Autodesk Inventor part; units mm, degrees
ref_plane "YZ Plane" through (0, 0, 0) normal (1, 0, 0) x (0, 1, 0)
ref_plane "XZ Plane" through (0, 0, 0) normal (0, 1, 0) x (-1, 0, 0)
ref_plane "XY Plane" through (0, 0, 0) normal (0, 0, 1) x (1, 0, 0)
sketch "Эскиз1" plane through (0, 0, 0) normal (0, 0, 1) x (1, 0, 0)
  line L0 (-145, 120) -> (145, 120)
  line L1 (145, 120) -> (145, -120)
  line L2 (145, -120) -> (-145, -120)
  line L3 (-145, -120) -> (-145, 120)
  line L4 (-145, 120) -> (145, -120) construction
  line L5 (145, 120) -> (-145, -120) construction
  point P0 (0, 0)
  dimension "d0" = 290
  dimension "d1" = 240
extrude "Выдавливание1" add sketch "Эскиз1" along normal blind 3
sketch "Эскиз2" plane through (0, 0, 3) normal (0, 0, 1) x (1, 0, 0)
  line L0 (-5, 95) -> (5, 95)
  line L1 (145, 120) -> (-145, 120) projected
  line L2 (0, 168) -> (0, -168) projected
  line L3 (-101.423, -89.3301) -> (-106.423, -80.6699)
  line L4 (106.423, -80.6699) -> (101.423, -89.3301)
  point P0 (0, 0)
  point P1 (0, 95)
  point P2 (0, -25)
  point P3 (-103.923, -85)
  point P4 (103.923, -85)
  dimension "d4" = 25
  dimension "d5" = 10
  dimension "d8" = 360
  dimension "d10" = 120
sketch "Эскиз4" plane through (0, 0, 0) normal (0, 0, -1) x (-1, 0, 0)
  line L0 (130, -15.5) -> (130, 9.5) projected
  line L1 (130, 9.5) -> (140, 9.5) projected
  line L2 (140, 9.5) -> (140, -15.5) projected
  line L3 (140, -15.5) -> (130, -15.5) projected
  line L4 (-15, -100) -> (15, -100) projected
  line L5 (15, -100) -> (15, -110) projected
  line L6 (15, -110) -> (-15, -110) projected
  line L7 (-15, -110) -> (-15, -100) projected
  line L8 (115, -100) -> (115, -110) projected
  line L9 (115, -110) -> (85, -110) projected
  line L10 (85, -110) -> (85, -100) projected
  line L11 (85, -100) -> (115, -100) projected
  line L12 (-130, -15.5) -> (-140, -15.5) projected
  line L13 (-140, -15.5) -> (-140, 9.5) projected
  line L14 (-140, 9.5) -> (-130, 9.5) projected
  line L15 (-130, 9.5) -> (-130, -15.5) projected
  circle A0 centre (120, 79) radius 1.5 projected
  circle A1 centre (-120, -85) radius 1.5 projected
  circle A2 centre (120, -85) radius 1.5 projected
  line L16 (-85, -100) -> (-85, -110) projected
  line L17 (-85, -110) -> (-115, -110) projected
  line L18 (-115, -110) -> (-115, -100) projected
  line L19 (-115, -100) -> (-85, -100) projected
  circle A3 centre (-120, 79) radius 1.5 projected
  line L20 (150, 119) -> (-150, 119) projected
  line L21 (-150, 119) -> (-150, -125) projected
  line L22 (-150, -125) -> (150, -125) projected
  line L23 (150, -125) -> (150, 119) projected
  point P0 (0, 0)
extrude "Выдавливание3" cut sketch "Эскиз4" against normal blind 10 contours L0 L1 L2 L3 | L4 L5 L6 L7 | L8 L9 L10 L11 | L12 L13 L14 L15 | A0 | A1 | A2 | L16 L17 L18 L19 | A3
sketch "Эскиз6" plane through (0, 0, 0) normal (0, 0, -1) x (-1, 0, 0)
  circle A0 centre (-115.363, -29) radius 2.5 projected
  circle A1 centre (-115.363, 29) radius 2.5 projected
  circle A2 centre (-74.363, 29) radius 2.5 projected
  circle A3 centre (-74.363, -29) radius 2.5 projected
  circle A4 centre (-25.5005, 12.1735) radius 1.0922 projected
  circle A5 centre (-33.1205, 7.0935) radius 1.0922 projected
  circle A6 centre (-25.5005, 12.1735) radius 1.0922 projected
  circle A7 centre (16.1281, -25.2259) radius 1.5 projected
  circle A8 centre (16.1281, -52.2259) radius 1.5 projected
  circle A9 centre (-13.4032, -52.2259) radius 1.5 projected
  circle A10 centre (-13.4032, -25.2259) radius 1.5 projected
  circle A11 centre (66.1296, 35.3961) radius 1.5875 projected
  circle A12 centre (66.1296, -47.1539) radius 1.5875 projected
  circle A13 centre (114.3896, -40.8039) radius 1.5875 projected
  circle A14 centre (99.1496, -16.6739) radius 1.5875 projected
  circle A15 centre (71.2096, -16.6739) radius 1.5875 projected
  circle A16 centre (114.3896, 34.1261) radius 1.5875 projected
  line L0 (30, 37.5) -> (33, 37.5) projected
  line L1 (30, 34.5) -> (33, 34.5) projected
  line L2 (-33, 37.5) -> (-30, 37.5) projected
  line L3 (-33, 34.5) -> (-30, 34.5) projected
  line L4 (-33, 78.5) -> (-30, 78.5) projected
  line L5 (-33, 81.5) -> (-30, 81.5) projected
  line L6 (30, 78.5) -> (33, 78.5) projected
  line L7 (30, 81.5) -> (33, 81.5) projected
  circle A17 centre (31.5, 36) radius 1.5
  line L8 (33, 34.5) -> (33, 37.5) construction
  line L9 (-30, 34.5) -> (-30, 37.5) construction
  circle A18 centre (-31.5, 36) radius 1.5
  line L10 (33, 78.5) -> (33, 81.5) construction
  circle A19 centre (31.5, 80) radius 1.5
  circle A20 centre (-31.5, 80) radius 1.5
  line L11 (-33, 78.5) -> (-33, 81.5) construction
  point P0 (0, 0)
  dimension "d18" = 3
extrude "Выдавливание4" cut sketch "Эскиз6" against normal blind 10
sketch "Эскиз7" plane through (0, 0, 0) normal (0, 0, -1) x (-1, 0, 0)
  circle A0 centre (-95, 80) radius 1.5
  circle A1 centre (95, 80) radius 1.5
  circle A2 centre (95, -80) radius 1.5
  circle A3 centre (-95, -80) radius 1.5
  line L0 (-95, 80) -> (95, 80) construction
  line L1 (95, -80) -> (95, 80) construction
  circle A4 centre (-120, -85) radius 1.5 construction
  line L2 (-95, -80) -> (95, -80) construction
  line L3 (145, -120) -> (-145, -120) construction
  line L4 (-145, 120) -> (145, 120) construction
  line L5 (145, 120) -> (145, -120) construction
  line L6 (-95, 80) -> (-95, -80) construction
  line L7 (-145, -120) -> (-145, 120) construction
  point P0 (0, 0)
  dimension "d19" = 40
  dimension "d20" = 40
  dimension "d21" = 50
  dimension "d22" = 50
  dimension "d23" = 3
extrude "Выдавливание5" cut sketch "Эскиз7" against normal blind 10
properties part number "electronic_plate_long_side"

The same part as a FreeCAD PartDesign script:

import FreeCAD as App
import Part
import Sketcher

V = App.Vector


def add_polygon(sketch, points):
    """Adds a closed chain of lines whose ends are joined by coincident constraints."""
    first, n = sketch.GeometryCount, len(points)
    for a, b in zip(points, points[1:] + points[:1]):
        sketch.addGeometry(Part.LineSegment(App.Vector(*a, 0), App.Vector(*b, 0)), False)
    for i in range(n):
        sketch.addConstraint(Sketcher.Constraint("Coincident", first + i, 2, first + (i + 1) % n, 1))

doc = App.newDocument("Part")
body = doc.addObject("PartDesign::Body", "Body")

# Sketch on XY plane
sketch1 = body.newObject("Sketcher::SketchObject", "Sketch")
sketch1.AttachmentSupport = (doc.getObject("XY_Plane"), [""])
sketch1.MapMode = "FlatFace"
add_polygon(sketch1, [(145, 120), (-145, 120), (-145, -120), (145, -120)])  # lines 0-3
sketch1.addConstraint([
    Sketcher.Constraint("Horizontal", 0),
    Sketcher.Constraint("Vertical", 1),
    Sketcher.Constraint("Horizontal", 2),
    Sketcher.Constraint("Vertical", 3),
    Sketcher.Constraint("Symmetric", 0, 2, 2, 2, -1, 1),
    Sketcher.Constraint("DistanceX", 0, 2, 0, 1, 290.0),
    Sketcher.Constraint("DistanceY", 1, 2, 1, 1, 240.0),
])
pad1 = body.newObject("PartDesign::Pad", "Pad")
pad1.Profile = sketch1
pad1.Length = 3

# Sketch on XY plane
sketch2 = body.newObject("Sketcher::SketchObject", "Sketch001")
sketch2.AttachmentSupport = (doc.getObject("XY_Plane"), [""])
sketch2.MapMode = "FlatFace"
add_polygon(sketch2, [(-130, 9.5), (-130, -15.5), (-140, -15.5), (-140, 9.5)])  # lines 0-3
add_polygon(sketch2, [(-15, -100), (15, -100), (15, -110), (-15, -110)])  # lines 4-7
add_polygon(sketch2, [(-115, -110), (-115, -100), (-85, -100), (-85, -110)])  # lines 8-11
add_polygon(sketch2, [(140, -15.5), (130, -15.5), (130, 9.5), (140, 9.5)])  # lines 12-15
sketch2.addGeometry(Part.Circle(V(-120, 79, 0), V(0, 0, 1), 1.5), False)  # 16
sketch2.addGeometry(Part.Circle(V(120, -85, 0), V(0, 0, 1), 1.5), False)  # 17
sketch2.addGeometry(Part.Circle(V(-120, -85, 0), V(0, 0, 1), 1.5), False)  # 18
add_polygon(sketch2, [(85, -110), (85, -100), (115, -100), (115, -110)])  # lines 19-22
sketch2.addGeometry(Part.Circle(V(120, 79, 0), V(0, 0, 1), 1.5), False)  # 23
sketch2.addConstraint([
    Sketcher.Constraint("Vertical", 0),
    Sketcher.Constraint("Horizontal", 1),
    Sketcher.Constraint("Vertical", 2),
    Sketcher.Constraint("Horizontal", 3),
    Sketcher.Constraint("Horizontal", 4),
    Sketcher.Constraint("Vertical", 5),
    Sketcher.Constraint("Horizontal", 6),
    Sketcher.Constraint("Vertical", 7),
    Sketcher.Constraint("Vertical", 8),
    Sketcher.Constraint("Horizontal", 9),
    Sketcher.Constraint("Vertical", 10),
    Sketcher.Constraint("Horizontal", 11),
    Sketcher.Constraint("Horizontal", 12),
    Sketcher.Constraint("Vertical", 13),
    Sketcher.Constraint("Horizontal", 14),
    Sketcher.Constraint("Vertical", 15),
    Sketcher.Constraint("Vertical", 19),
    Sketcher.Constraint("Horizontal", 20),
    Sketcher.Constraint("Vertical", 21),
    Sketcher.Constraint("Horizontal", 22),
    Sketcher.Constraint("Equal", 16, 17),
    Sketcher.Constraint("Equal", 17, 18),
    Sketcher.Constraint("Equal", 18, 23),
    Sketcher.Constraint("Symmetric", 17, 3, 18, 3, -2),
    Sketcher.Constraint("Symmetric", 16, 3, 23, 3, -2),
    Sketcher.Constraint("Symmetric", 0, 2, 12, 2, -2),
    Sketcher.Constraint("Symmetric", 2, 2, 14, 2, -2),
    Sketcher.Constraint("Symmetric", 9, 2, 19, 2, -2),
    Sketcher.Constraint("Symmetric", 11, 2, 21, 2, -2),
    Sketcher.Constraint("Horizontal", 7, 2, 8, 2),
    Sketcher.Constraint("Horizontal", 6, 2, 10, 2),
    Sketcher.Constraint("Vertical", 16, 3, 18, 3),
    Sketcher.Constraint("Equal", 6, 9),
    Sketcher.Constraint("Equal", 14, 5),
    Sketcher.Constraint("Diameter", 16, 3.0),
    Sketcher.Constraint("DistanceX", 1, 2, 1, 1, 10.0),
    Sketcher.Constraint("DistanceX", 4, 1, 4, 2, 30.0),
    Sketcher.Constraint("DistanceY", 0, 2, 0, 1, 25.0),
    Sketcher.Constraint("DistanceX", 16, 3, -1, 1, 120.0),
    Sketcher.Constraint("DistanceY", -1, 1, 16, 3, 79.0),
    Sketcher.Constraint("DistanceY", 17, 3, -1, 1, 85.0),
    Sketcher.Constraint("DistanceX", 0, 2, -1, 1, 130.0),
    Sketcher.Constraint("DistanceX", -1, 1, 4, 2, 15.0),
    Sketcher.Constraint("DistanceY", 4, 2, -1, 1, 100.0),
    Sketcher.Constraint("DistanceX", 8, 2, -1, 1, 115.0),
    Sketcher.Constraint("DistanceY", 0, 2, -1, 1, 15.5),
])
pocket1 = body.newObject("PartDesign::Pocket", "Pocket")
pocket1.Profile = sketch2
pocket1.Length = 10
pocket1.Reversed = True

# Sketch on XY plane
sketch3 = body.newObject("Sketcher::SketchObject", "Sketch002")
sketch3.AttachmentSupport = (doc.getObject("XY_Plane"), [""])
sketch3.MapMode = "FlatFace"
sketch3.addGeometry([
    Part.Circle(V(115.363, -29, 0), V(0, 0, 1), 2.5),  # 0
    Part.Circle(V(115.363, 29, 0), V(0, 0, 1), 2.5),  # 1
    Part.Circle(V(74.363, 29, 0), V(0, 0, 1), 2.5),  # 2
    Part.Circle(V(74.363, -29, 0), V(0, 0, 1), 2.5),  # 3
    Part.Circle(V(25.5005, 12.1735, 0), V(0, 0, 1), 1.0922),  # 4
    Part.Circle(V(33.1205, 7.0935, 0), V(0, 0, 1), 1.0922),  # 5
    Part.Circle(V(-16.1281, -25.2259, 0), V(0, 0, 1), 1.5),  # 6
    Part.Circle(V(-16.1281, -52.2259, 0), V(0, 0, 1), 1.5),  # 7
    Part.Circle(V(13.4032, -52.2259, 0), V(0, 0, 1), 1.5),  # 8
    Part.Circle(V(13.4032, -25.2259, 0), V(0, 0, 1), 1.5),  # 9
    Part.Circle(V(-66.1296, 35.3961, 0), V(0, 0, 1), 1.5875),  # 10
    Part.Circle(V(-66.1296, -47.1539, 0), V(0, 0, 1), 1.5875),  # 11
    Part.Circle(V(-114.3896, -40.8039, 0), V(0, 0, 1), 1.5875),  # 12
    Part.Circle(V(-99.1496, -16.6739, 0), V(0, 0, 1), 1.5875),  # 13
    Part.Circle(V(-71.2096, -16.6739, 0), V(0, 0, 1), 1.5875),  # 14
    Part.Circle(V(-114.3896, 34.1261, 0), V(0, 0, 1), 1.5875),  # 15
    Part.Circle(V(-31.5, 36, 0), V(0, 0, 1), 1.5),  # 16
    Part.Circle(V(31.5, 36, 0), V(0, 0, 1), 1.5),  # 17
    Part.Circle(V(-31.5, 80, 0), V(0, 0, 1), 1.5),  # 18
    Part.Circle(V(31.5, 80, 0), V(0, 0, 1), 1.5),  # 19
], False)
sketch3.addConstraint([
    Sketcher.Constraint("Equal", 0, 1),
    Sketcher.Constraint("Equal", 1, 2),
    Sketcher.Constraint("Equal", 2, 3),
    Sketcher.Constraint("Equal", 4, 5),
    Sketcher.Constraint("Equal", 6, 7),
    Sketcher.Constraint("Equal", 7, 8),
    Sketcher.Constraint("Equal", 8, 9),
    Sketcher.Constraint("Equal", 10, 11),
    Sketcher.Constraint("Equal", 11, 12),
    Sketcher.Constraint("Equal", 12, 13),
    Sketcher.Constraint("Equal", 13, 14),
    Sketcher.Constraint("Equal", 14, 15),
    Sketcher.Constraint("Equal", 9, 16),
    Sketcher.Constraint("Equal", 16, 17),
    Sketcher.Constraint("Equal", 17, 18),
    Sketcher.Constraint("Equal", 18, 19),
    Sketcher.Constraint("Symmetric", 16, 3, 17, 3, -2),
    Sketcher.Constraint("Symmetric", 18, 3, 19, 3, -2),
    Sketcher.Constraint("Symmetric", 0, 3, 1, 3, -1),
    Sketcher.Constraint("Symmetric", 2, 3, 3, 3, -1),
    Sketcher.Constraint("Horizontal", 1, 3, 2, 3),
    Sketcher.Constraint("Horizontal", 7, 3, 8, 3),
    Sketcher.Constraint("Horizontal", 6, 3, 9, 3),
    Sketcher.Constraint("Horizontal", 13, 3, 14, 3),
    Sketcher.Constraint("Vertical", 6, 3, 7, 3),
    Sketcher.Constraint("Vertical", 8, 3, 9, 3),
    Sketcher.Constraint("Vertical", 10, 3, 11, 3),
    Sketcher.Constraint("Vertical", 12, 3, 15, 3),
    Sketcher.Constraint("Vertical", 16, 3, 18, 3),
    Sketcher.Constraint("Diameter", 6, 3.0),
    Sketcher.Constraint("Diameter", 0, 5.0),
    Sketcher.Constraint("Diameter", 10, 3.175),
    Sketcher.Constraint("DistanceY", 0, 3, -1, 1, 29.0),
    Sketcher.Constraint("DistanceY", -1, 1, 16, 3, 36.0),
    Sketcher.Constraint("DistanceY", -1, 1, 18, 3, 80.0),
    Sketcher.Constraint("DistanceX", 2, 3, 1, 3, 41.0),
    Sketcher.Constraint("DistanceY", 7, 3, 6, 3, 27.0),
    Sketcher.Constraint("DistanceX", 16, 3, 17, 3, 63.0),
    Sketcher.Constraint("Diameter", 4, 2.1844),
    Sketcher.Constraint("DistanceY", 12, 3, 10, 3, 76.2),
    Sketcher.Constraint("DistanceY", 13, 3, 15, 3, 50.8),
    Sketcher.Constraint("DistanceX", 4, 3, 5, 3, 7.62),
    Sketcher.Constraint("DistanceY", 5, 3, 4, 3, 5.08),
    Sketcher.Constraint("DistanceX", 10, 3, 4, 3, 91.63),
    Sketcher.Constraint("DistanceY", 11, 3, 10, 3, 82.55),
    Sketcher.Constraint("DistanceX", 12, 3, 11, 3, 48.26),
    Sketcher.Constraint("DistanceX", 12, 3, 13, 3, 15.24),
    Sketcher.Constraint("DistanceY", 12, 3, 13, 3, 24.13),
    Sketcher.Constraint("DistanceX", 13, 3, 14, 3, 27.94),
    Sketcher.Constraint("DistanceX", -1, 1, 0, 3, 115.363),
    Sketcher.Constraint("DistanceX", 6, 3, -1, 1, 16.128),
    Sketcher.Constraint("DistanceY", 6, 3, -1, 1, 25.226),
    Sketcher.Constraint("DistanceY", -1, 1, 10, 3, 35.396),
    Sketcher.Constraint("DistanceX", -1, 1, 4, 3, 25.5005),
    Sketcher.Constraint("DistanceY", -1, 1, 4, 3, 12.1735),
    Sketcher.Constraint("DistanceX", -1, 1, 8, 3, 13.4032),
])
pocket2 = body.newObject("PartDesign::Pocket", "Pocket001")
pocket2.Profile = sketch3
pocket2.Length = 10
pocket2.Reversed = True

# Sketch on XY plane
sketch4 = body.newObject("Sketcher::SketchObject", "Sketch003")
sketch4.AttachmentSupport = (doc.getObject("XY_Plane"), [""])
sketch4.MapMode = "FlatFace"
sketch4.addGeometry([
    Part.Circle(V(95, 80, 0), V(0, 0, 1), 1.5),
    Part.Circle(V(-95, 80, 0), V(0, 0, 1), 1.5),
    Part.Circle(V(-95, -80, 0), V(0, 0, 1), 1.5),
    Part.Circle(V(95, -80, 0), V(0, 0, 1), 1.5),
], False)
sketch4.addConstraint([
    Sketcher.Constraint("Equal", 0, 1),
    Sketcher.Constraint("Equal", 1, 2),
    Sketcher.Constraint("Equal", 2, 3),
    Sketcher.Constraint("Symmetric", 0, 3, 2, 3, -1, 1),
    Sketcher.Constraint("Symmetric", 1, 3, 3, 3, -1, 1),
    Sketcher.Constraint("Symmetric", 0, 3, 1, 3, -2),
    Sketcher.Constraint("Diameter", 0, 3.0),
    Sketcher.Constraint("DistanceX", -1, 1, 0, 3, 95.0),
    Sketcher.Constraint("DistanceY", -1, 1, 0, 3, 80.0),
])
pocket3 = body.newObject("PartDesign::Pocket", "Pocket002")
pocket3.Profile = sketch4
pocket3.Length = 10
pocket3.Reversed = True

doc.recompute()
